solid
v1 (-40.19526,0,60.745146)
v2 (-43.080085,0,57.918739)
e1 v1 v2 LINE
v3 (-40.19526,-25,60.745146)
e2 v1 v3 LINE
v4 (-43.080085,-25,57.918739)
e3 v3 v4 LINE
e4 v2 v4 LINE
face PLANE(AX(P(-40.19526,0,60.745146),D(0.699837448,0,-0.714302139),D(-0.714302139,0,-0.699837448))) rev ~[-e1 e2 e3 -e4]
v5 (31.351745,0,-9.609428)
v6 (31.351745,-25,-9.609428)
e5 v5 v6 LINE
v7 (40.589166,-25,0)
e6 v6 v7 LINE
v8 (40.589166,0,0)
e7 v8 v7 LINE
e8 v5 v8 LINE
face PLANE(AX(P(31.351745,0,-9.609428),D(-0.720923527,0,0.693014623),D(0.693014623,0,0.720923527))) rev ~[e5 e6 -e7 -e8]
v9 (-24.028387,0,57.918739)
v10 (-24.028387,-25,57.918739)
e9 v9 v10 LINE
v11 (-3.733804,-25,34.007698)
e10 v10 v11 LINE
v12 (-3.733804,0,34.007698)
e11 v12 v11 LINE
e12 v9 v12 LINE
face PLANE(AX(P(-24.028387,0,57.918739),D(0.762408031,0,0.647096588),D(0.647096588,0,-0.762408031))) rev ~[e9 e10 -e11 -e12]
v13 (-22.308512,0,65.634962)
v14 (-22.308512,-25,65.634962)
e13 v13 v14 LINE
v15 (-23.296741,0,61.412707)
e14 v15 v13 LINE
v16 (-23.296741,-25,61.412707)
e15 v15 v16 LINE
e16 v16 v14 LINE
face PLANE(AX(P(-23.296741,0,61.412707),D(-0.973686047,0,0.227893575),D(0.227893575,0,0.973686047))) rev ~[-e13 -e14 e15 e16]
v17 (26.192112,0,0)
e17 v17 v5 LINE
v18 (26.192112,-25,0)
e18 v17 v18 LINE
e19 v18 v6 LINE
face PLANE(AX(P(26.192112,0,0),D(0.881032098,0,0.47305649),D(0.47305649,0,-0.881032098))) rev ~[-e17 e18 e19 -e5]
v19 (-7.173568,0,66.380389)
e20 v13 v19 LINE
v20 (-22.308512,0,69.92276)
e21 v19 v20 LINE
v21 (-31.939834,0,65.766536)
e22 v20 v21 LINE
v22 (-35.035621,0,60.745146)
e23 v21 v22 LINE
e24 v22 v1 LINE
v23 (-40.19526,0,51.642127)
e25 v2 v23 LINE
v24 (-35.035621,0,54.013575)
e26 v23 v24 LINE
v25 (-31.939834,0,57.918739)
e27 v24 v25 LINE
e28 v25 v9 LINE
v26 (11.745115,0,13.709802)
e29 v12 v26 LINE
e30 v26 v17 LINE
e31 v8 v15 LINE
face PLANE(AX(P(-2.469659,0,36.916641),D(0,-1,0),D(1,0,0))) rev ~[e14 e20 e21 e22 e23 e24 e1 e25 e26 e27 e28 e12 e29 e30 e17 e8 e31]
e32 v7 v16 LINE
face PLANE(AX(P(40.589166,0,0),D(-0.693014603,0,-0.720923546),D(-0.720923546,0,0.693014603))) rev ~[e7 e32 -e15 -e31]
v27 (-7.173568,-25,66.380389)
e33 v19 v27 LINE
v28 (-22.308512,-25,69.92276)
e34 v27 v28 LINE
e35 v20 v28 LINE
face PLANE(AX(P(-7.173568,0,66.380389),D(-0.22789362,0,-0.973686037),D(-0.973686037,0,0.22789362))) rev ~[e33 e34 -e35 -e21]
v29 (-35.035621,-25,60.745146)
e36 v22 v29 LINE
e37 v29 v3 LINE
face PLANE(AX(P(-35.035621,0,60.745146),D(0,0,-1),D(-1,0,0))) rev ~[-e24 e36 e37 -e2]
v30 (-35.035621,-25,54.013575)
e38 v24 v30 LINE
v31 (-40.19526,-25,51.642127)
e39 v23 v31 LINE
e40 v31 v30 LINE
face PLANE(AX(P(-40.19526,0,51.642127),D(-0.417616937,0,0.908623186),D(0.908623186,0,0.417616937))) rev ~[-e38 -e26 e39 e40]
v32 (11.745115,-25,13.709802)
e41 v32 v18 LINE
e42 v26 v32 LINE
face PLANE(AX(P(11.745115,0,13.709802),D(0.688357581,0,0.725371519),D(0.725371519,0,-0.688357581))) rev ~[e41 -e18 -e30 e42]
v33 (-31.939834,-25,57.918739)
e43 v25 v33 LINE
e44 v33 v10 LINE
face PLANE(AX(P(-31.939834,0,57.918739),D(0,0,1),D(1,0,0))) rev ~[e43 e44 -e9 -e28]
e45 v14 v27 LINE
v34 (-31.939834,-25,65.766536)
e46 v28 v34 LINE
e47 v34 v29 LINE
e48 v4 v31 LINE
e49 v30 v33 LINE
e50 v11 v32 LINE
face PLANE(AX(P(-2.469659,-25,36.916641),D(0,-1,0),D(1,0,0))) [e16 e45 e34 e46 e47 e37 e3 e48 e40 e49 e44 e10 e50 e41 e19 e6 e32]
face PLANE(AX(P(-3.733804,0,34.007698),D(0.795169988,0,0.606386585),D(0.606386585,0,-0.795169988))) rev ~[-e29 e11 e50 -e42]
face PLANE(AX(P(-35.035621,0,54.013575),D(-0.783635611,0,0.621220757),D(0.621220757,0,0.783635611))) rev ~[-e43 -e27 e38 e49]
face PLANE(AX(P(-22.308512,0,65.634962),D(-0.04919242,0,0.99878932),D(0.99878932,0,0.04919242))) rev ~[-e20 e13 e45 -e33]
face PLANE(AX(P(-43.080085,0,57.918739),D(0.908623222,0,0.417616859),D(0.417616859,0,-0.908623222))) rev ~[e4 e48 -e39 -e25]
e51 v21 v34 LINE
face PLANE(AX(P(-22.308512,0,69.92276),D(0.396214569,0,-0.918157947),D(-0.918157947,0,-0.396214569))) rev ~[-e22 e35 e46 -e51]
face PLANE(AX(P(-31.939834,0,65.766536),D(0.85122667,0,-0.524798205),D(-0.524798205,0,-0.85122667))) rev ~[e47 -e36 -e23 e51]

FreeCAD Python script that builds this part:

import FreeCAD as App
import Part
import Sketcher
from FreeCAD import Vector
Q = App.Units.Quantity

doc = App.newDocument("Part")
params = doc.addObject("Spreadsheet::Sheet", "Params")
for row, (alias, value) in enumerate([
    ("pad1_length", "25 mm"),
], start=1):
    params.set(f"A{row}", alias)
    params.set(f"B{row}", "=" + value)
    params.setAlias(f"B{row}", alias)

body = doc.addObject("PartDesign::Body", "Body")

# Sketch on XZ plane
sketch1 = body.newObject("Sketcher::SketchObject", "Sketch")
sketch1.AttachmentSupport = (doc.getObject("XZ_Plane"), [""])
sketch1.MapMode = "FlatFace"
sketch1.addGeometry(Part.LineSegment(Vector(-22.308512, 65.634962, 0), Vector(-7.173568, 66.380389, 0)), False)
sketch1.addGeometry(Part.LineSegment(Vector(-7.173568, 66.380389, 0), Vector(-22.308512, 69.92276, 0)), False)
sketch1.addGeometry(Part.LineSegment(Vector(-22.308512, 69.92276, 0), Vector(-31.939834, 65.766536, 0)), False)
sketch1.addGeometry(Part.LineSegment(Vector(-31.939834, 65.766536, 0), Vector(-35.035621, 60.745146, 0)), False)
sketch1.addGeometry(Part.LineSegment(Vector(-35.035621, 60.745146, 0), Vector(-40.19526, 60.745146, 0)), False)
sketch1.addGeometry(Part.LineSegment(Vector(-40.19526, 60.745146, 0), Vector(-43.080085, 57.918739, 0)), False)
sketch1.addGeometry(Part.LineSegment(Vector(-43.080085, 57.918739, 0), Vector(-40.19526, 51.642127, 0)), False)
sketch1.addGeometry(Part.LineSegment(Vector(-40.19526, 51.642127, 0), Vector(-35.035621, 54.013575, 0)), False)
sketch1.addGeometry(Part.LineSegment(Vector(-35.035621, 54.013575, 0), Vector(-31.939834, 57.918739, 0)), False)
sketch1.addGeometry(Part.LineSegment(Vector(-31.939834, 57.918739, 0), Vector(-24.028387, 57.918739, 0)), False)
sketch1.addGeometry(Part.LineSegment(Vector(-24.028387, 57.918739, 0), Vector(-3.733804, 34.007698, 0)), False)
sketch1.addGeometry(Part.LineSegment(Vector(-3.733804, 34.007698, 0), Vector(11.745115, 13.709802, 0)), False)
sketch1.addGeometry(Part.LineSegment(Vector(11.745115, 13.709802, 0), Vector(26.192112, 0, 0)), False)
sketch1.addGeometry(Part.LineSegment(Vector(26.192112, 0, 0), Vector(31.351745, -9.609428, 0)), False)
sketch1.addGeometry(Part.LineSegment(Vector(31.351745, -9.609428, 0), Vector(40.589166, 0, 0)), False)
sketch1.addGeometry(Part.LineSegment(Vector(40.589166, 0, 0), Vector(-23.296741, 61.412707, 0)), False)
sketch1.addGeometry(Part.LineSegment(Vector(-23.296741, 61.412707, 0), Vector(-22.308512, 65.634962, 0)), False)
sketch1.addConstraint(Sketcher.Constraint("Coincident", 0, 2, 1, 1))
sketch1.addConstraint(Sketcher.Constraint("Coincident", 1, 2, 2, 1))
sketch1.addConstraint(Sketcher.Constraint("Coincident", 2, 2, 3, 1))
sketch1.addConstraint(Sketcher.Constraint("Coincident", 3, 2, 4, 1))
sketch1.addConstraint(Sketcher.Constraint("Coincident", 4, 2, 5, 1))
sketch1.addConstraint(Sketcher.Constraint("Coincident", 5, 2, 6, 1))
sketch1.addConstraint(Sketcher.Constraint("Coincident", 6, 2, 7, 1))
sketch1.addConstraint(Sketcher.Constraint("Coincident", 7, 2, 8, 1))
sketch1.addConstraint(Sketcher.Constraint("Coincident", 8, 2, 9, 1))
sketch1.addConstraint(Sketcher.Constraint("Coincident", 9, 2, 10, 1))
sketch1.addConstraint(Sketcher.Constraint("Coincident", 10, 2, 11, 1))
sketch1.addConstraint(Sketcher.Constraint("Coincident", 11, 2, 12, 1))
sketch1.addConstraint(Sketcher.Constraint("Coincident", 12, 2, 13, 1))
sketch1.addConstraint(Sketcher.Constraint("Coincident", 13, 2, 14, 1))
sketch1.addConstraint(Sketcher.Constraint("Coincident", 14, 2, 15, 1))
sketch1.addConstraint(Sketcher.Constraint("Coincident", 15, 2, 16, 1))
sketch1.addConstraint(Sketcher.Constraint("Coincident", 16, 2, 0, 1))
sketch1.addConstraint(Sketcher.Constraint("Horizontal", 4))
sketch1.addConstraint(Sketcher.Constraint("Horizontal", 9))
sketch1.addConstraint(Sketcher.Constraint("PointOnObject", 12, 2, -1))
sketch1.addConstraint(Sketcher.Constraint("PointOnObject", 14, 2, -1))
sketch1.addConstraint(Sketcher.Constraint("Perpendicular", 6, 7))
sketch1.addConstraint(Sketcher.Constraint("Perpendicular", 14, 15))
sketch1.addConstraint(Sketcher.Constraint("Perpendicular", 1, 16))
sketch1.addConstraint(Sketcher.Constraint("Horizontal", 5, 2, 8, 2))
sketch1.addConstraint(Sketcher.Constraint("Vertical", 4, 2, 6, 2))
sketch1.addConstraint(Sketcher.Constraint("Vertical", 3, 2, 7, 2))
sketch1.addConstraint(Sketcher.Constraint("Vertical", 2, 2, 8, 2))
sketch1.addConstraint(Sketcher.Constraint("Vertical", 1, 2, 16, 2))
sketch1.addConstraint(Sketcher.Constraint("DistanceX", 4, 2, 4, 1, Q("5.159639 mm")))
sketch1.addConstraint(Sketcher.Constraint("DistanceX", 9, 2, 12, 2, Q("50.220499 mm")))
sketch1.addConstraint(Sketcher.Constraint("Distance", 0, Q("15.15329 mm")))
sketch1.addConstraint(Sketcher.Constraint("Distance", 2, Q("10.489831 mm")))
sketch1.addConstraint(Sketcher.Constraint("Distance", 14, Q("13.329331 mm")))
sketch1.addConstraint(Sketcher.Constraint("Distance", 16, Q("4.336362 mm")))
sketch1.addConstraint(Sketcher.Constraint("DistanceX", 9, 1, 9, 2, Q("7.911447 mm")))
sketch1.addConstraint(Sketcher.Constraint("DistanceX", 0, 2, -1, 1, Q("7.173568 mm")))
sketch1.addConstraint(Sketcher.Constraint("DistanceY", -1, 1, 0, 2, Q("66.380389 mm")))
sketch1.addConstraint(Sketcher.Constraint("DistanceY", -1, 1, 1, 2, Q("69.92276 mm")))
sketch1.addConstraint(Sketcher.Constraint("DistanceX", 3, 2, -1, 1, Q("35.035621 mm")))
sketch1.addConstraint(Sketcher.Constraint("DistanceY", -1, 1, 5, 2, Q("57.918739 mm")))
sketch1.addConstraint(Sketcher.Constraint("DistanceX", 15, 2, -1, 1, Q("23.296741 mm")))
sketch1.addConstraint(Sketcher.Constraint("DistanceY", 3, 2, 2, 2, Q("5.02139 mm")))
sketch1.addConstraint(Sketcher.Constraint("DistanceX", 5, 2, 2, 2, Q("11.140251 mm")))
sketch1.addConstraint(Sketcher.Constraint("DistanceY", 6, 2, 4, 2, Q("9.103019 mm")))
sketch1.addConstraint(Sketcher.Constraint("DistanceY", 6, 2, 7, 2, Q("2.371448 mm")))
sketch1.addConstraint(Sketcher.Constraint("DistanceY", 10, 2, 9, 2, Q("23.911041 mm")))
sketch1.addConstraint(Sketcher.Constraint("DistanceX", 8, 2, 10, 2, Q("28.20603 mm")))
sketch1.addConstraint(Sketcher.Constraint("DistanceX", 10, 2, 11, 2, Q("15.478919 mm")))
sketch1.addConstraint(Sketcher.Constraint("DistanceX", 11, 2, 13, 2, Q("19.60663 mm")))
sketch1.addConstraint(Sketcher.Constraint("DistanceY", 13, 2, 11, 2, Q("23.31923 mm")))
pad1 = body.newObject("PartDesign::Pad", "Pad")
pad1.Profile = sketch1
pad1.setExpression("Length", "Params.pad1_length")

doc.recompute()
